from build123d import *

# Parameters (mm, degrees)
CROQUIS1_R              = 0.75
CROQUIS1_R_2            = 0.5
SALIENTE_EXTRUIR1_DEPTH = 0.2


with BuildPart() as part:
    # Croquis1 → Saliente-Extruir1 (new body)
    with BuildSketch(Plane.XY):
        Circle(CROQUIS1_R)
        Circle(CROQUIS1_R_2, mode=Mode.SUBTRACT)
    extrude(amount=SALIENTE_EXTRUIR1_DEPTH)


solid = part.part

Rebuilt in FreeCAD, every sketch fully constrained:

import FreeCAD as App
import Part
import Sketcher
from FreeCAD import Vector
Q = App.Units.Quantity

doc = App.newDocument("Part")
body = doc.addObject("PartDesign::Body", "Body")

sketch1 = doc.addObject("Sketcher::SketchObject", "Sketch")
body.addObject(sketch1)
sketch1.AttachmentSupport = (doc.XY_Plane, [""])
sketch1.MapMode = "FlatFace"
sketch1.addGeometry([
    Part.Circle(Vector(0, 0, 0), Vector(0, 0, 1), 0.8),
    Part.Circle(Vector(0, 0, 0), Vector(0, 0, 1), 0.5),
], False)
sketch1.addConstraint([
    Sketcher.Constraint("Coincident", 0, 3, -1, 1),
    Sketcher.Constraint("Coincident", 1, 3, -1, 1),
    Sketcher.Constraint("Diameter", 1, Q("1 mm")),
    Sketcher.Constraint("Diameter", 0, Q("1.5 mm")),
])
pad1 = doc.addObject("PartDesign::Pad", "Pad")
body.addObject(pad1)
pad1.Profile = sketch1
pad1.Length = 0.2

doc.recompute()
